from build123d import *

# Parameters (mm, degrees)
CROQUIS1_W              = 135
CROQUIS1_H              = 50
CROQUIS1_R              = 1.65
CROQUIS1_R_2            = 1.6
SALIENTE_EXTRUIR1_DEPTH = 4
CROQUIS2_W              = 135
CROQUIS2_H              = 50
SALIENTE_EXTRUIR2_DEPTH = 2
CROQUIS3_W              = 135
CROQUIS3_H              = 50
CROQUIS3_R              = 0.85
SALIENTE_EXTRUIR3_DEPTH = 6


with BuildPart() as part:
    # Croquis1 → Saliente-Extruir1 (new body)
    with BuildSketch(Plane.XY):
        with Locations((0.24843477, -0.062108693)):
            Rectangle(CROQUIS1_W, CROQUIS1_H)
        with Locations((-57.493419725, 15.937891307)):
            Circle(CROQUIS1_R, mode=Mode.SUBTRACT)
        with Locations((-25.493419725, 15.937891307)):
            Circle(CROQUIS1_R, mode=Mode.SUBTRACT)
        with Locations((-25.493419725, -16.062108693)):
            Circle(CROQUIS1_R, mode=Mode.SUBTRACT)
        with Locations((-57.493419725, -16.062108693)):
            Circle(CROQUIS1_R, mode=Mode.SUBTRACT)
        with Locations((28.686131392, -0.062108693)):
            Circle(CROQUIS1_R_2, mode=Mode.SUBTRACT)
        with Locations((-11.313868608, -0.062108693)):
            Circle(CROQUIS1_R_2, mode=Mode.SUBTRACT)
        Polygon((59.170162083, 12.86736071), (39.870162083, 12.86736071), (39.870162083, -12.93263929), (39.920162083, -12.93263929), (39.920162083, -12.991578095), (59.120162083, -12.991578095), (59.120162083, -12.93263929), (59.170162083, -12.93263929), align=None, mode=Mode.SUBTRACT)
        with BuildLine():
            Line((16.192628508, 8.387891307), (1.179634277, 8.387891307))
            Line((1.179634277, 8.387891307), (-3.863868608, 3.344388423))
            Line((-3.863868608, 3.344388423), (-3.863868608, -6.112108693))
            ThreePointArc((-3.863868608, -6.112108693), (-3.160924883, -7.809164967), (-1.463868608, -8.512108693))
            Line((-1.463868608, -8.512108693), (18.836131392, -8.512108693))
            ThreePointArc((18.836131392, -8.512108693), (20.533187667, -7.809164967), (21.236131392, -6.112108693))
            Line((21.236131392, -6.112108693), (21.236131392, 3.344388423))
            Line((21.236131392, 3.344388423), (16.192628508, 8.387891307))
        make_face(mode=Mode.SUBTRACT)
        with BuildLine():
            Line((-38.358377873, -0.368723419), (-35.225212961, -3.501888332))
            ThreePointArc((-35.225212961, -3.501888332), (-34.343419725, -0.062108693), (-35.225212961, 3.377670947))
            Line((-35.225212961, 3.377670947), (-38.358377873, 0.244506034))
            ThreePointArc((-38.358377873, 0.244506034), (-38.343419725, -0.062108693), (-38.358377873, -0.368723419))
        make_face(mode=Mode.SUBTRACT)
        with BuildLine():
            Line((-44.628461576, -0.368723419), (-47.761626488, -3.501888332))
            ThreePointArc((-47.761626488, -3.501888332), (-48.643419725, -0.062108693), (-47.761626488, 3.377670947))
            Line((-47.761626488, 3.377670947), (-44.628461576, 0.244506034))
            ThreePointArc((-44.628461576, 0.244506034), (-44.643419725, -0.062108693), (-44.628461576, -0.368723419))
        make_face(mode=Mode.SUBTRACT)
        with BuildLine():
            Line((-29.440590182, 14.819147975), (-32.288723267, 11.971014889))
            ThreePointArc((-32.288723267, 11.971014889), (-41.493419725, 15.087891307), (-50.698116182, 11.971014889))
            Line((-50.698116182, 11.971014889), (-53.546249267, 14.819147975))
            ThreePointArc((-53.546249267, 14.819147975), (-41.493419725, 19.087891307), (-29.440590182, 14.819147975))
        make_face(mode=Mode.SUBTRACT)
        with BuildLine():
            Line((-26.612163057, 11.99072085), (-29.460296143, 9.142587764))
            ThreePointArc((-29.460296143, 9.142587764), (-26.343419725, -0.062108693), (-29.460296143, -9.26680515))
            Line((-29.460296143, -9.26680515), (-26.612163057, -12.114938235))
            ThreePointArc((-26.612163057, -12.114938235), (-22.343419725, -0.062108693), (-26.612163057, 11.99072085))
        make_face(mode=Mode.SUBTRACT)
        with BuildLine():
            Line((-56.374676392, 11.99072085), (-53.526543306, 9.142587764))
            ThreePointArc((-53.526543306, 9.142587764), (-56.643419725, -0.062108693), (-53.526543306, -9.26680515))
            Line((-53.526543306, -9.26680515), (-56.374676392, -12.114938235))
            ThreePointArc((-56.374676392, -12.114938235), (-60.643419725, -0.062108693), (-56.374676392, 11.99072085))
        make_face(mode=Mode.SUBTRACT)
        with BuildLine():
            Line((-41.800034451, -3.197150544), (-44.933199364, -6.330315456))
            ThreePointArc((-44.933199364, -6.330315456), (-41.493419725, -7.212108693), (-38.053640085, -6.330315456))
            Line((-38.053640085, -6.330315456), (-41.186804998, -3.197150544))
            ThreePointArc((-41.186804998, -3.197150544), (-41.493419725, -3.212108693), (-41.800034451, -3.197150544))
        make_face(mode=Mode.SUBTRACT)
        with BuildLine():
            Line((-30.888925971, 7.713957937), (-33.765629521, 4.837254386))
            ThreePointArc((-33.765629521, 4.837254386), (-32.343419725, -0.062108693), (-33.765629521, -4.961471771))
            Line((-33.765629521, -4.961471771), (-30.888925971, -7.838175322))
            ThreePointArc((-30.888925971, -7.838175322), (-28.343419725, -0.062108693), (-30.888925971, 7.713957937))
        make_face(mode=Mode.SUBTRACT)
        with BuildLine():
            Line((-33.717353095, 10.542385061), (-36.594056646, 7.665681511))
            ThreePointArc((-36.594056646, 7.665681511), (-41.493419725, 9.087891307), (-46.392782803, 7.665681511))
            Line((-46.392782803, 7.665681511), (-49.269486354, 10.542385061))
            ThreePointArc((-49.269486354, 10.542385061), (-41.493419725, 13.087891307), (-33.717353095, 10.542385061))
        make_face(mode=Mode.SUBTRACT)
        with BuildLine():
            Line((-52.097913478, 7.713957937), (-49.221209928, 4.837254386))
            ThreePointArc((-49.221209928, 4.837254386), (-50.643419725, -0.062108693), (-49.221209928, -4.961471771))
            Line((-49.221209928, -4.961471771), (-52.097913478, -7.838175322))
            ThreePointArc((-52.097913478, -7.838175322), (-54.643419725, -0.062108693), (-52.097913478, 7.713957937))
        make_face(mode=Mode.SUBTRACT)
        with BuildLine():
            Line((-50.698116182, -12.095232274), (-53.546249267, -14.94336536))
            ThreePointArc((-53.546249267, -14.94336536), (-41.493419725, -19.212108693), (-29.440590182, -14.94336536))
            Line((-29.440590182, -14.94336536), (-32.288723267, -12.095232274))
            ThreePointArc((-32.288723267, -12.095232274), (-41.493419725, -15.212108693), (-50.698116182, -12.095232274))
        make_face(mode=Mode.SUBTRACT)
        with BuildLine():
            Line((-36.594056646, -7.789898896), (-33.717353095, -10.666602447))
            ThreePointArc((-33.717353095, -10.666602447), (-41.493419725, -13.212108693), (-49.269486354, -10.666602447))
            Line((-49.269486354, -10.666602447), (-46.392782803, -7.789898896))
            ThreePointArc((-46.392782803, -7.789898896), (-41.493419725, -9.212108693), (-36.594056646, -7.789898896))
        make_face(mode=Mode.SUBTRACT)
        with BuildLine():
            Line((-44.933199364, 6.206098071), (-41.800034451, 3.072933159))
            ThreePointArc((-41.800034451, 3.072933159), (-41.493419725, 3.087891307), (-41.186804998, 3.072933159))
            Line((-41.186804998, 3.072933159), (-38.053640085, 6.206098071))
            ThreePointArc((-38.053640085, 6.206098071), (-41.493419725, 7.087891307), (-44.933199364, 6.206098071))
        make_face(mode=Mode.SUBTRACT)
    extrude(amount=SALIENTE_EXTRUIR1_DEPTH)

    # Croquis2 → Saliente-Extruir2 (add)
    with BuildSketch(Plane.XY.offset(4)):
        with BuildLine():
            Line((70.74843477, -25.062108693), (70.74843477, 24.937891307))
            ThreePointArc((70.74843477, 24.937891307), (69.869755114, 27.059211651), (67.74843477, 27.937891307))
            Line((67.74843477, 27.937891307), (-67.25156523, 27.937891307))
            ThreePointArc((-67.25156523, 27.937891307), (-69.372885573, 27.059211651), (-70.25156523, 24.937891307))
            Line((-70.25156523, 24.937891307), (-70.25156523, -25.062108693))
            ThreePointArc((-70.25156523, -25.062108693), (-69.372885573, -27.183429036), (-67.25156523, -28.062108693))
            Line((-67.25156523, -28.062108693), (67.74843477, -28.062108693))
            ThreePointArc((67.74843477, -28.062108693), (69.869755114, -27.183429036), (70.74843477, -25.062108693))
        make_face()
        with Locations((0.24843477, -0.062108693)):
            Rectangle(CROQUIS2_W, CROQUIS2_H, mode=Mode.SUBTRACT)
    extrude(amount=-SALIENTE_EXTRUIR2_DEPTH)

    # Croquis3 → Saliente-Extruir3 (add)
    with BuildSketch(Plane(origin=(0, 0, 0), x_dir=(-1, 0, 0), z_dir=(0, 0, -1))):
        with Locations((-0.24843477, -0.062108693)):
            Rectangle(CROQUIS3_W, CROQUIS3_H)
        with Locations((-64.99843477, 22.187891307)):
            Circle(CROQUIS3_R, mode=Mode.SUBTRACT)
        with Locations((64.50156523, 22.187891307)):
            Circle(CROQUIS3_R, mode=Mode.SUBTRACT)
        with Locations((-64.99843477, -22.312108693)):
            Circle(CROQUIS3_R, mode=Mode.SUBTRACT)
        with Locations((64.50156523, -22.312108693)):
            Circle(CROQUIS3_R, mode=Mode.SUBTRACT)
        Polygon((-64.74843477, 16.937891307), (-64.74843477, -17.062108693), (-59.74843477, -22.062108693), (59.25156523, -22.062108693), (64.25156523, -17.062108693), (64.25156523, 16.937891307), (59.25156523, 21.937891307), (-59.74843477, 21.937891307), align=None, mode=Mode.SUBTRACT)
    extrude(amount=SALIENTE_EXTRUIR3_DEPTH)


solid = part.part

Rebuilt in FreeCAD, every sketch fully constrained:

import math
import FreeCAD as App
import Part
import Sketcher
from FreeCAD import Vector

doc = App.newDocument("Part")
body = doc.addObject("PartDesign::Body", "Body")

sketch1 = body.newObject("Sketcher::SketchObject", "Sketch")
sketch1.AttachmentSupport = (doc.getObject("XY_Plane"), [""])
sketch1.MapMode = "FlatFace"
sketch1.addGeometry([
    Part.LineSegment(Vector(-67.251565, 24.937891, 0), Vector(-67.251565, -25.062109, 0)),
    Part.LineSegment(Vector(-67.251565, -25.062109, 0), Vector(67.748435, -25.062109, 0)),
    Part.LineSegment(Vector(67.748435, -25.062109, 0), Vector(67.748435, 24.937891, 0)),
    Part.LineSegment(Vector(67.748435, 24.937891, 0), Vector(-67.251565, 24.937891, 0)),
    Part.Circle(Vector(-57.49342, -16.062109, 0), Vector(0, 0, 1), 1.65),
    Part.LineSegment(Vector(-53.546249, -14.943365, 0), Vector(-50.698116, -12.095232, 0)),
    Part.ArcOfCircle(Part.Circle(Vector(-41.49342, -0.062109, 0), Vector(0, 0, 1), 15.15), math.radians(-127.414057), math.radians(-52.585943)),
    Part.LineSegment(Vector(-32.288723, -12.095232, 0), Vector(-29.44059, -14.943365, 0)),
    Part.ArcOfCircle(Part.Circle(Vector(-41.49342, -0.062109, 0), Vector(0, 0, 1), 19.15), math.radians(-129.005175), math.radians(-50.994825)),
    Part.ArcOfCircle(Part.Circle(Vector(-41.49342, -0.062109, 0), Vector(0, 0, 1), 9.15), math.radians(-122.374402), math.radians(-57.625598)),
    Part.LineSegment(Vector(-36.594057, -7.789899, 0), Vector(-33.717353, -10.666602, 0)),
    Part.ArcOfCircle(Part.Circle(Vector(-41.49342, -0.062109, 0), Vector(0, 0, 1), 13.15), math.radians(-126.251863), math.radians(-53.748137)),
    Part.LineSegment(Vector(-49.269486, -10.666602, 0), Vector(-46.392783, -7.789899, 0)),
    Part.Circle(Vector(-25.49342, -16.062109, 0), Vector(0, 0, 1), 1.65),
    Part.LineSegment(Vector(-44.933199, -6.330315, 0), Vector(-41.800034, -3.197151, 0)),
    Part.ArcOfCircle(Part.Circle(Vector(-41.49342, -0.062109, 0), Vector(0, 0, 1), 3.15), math.radians(-95.585902), math.radians(-84.414098)),
    Part.LineSegment(Vector(-41.186805, -3.197151, 0), Vector(-38.05364, -6.330315, 0)),
    Part.ArcOfCircle(Part.Circle(Vector(-41.49342, -0.062109, 0), Vector(0, 0, 1), 7.15), math.radians(-118.756489), math.radians(-61.243511)),
    Part.ArcOfCircle(Part.Circle(Vector(-41.49342, -0.062109, 0), Vector(0, 0, 1), 19.15), math.radians(140.994825), math.radians(219.005175)),
    Part.LineSegment(Vector(-56.374676, 11.990721, 0), Vector(-53.526543, 9.142588, 0)),
    Part.ArcOfCircle(Part.Circle(Vector(-41.49342, -0.062109, 0), Vector(0, 0, 1), 15.15), math.radians(142.585943), math.radians(217.414057)),
    Part.LineSegment(Vector(-53.526543, -9.266805, 0), Vector(-56.374676, -12.114938, 0)),
    Part.ArcOfCircle(Part.Circle(Vector(-41.49342, -0.062109, 0), Vector(0, 0, 1), 13.15), math.radians(143.748137), math.radians(216.251863)),
    Part.LineSegment(Vector(-52.097913, 7.713958, 0), Vector(-49.22121, 4.837254, 0)),
    Part.ArcOfCircle(Part.Circle(Vector(-41.49342, -0.062109, 0), Vector(0, 0, 1), 9.15), math.radians(147.625598), math.radians(212.374402)),
    Part.LineSegment(Vector(-49.22121, -4.961472, 0), Vector(-52.097913, -7.838175, 0)),
    Part.ArcOfCircle(Part.Circle(Vector(-41.49342, -0.062109, 0), Vector(0, 0, 1), 3.15), math.radians(174.414098), math.radians(185.585902)),
    Part.LineSegment(Vector(-44.628462, -0.368723, 0), Vector(-47.761626, -3.501888, 0)),
    Part.ArcOfCircle(Part.Circle(Vector(-41.49342, -0.062109, 0), Vector(0, 0, 1), 7.15), math.radians(151.243511), math.radians(208.756489)),
    Part.LineSegment(Vector(-47.761626, 3.377671, 0), Vector(-44.628462, 0.244506, 0)),
    Part.LineSegment(Vector(-35.225213, -3.501888, 0), Vector(-38.358378, -0.368723, 0)),
    Part.ArcOfCircle(Part.Circle(Vector(-41.49342, -0.062109, 0), Vector(0, 0, 1), 3.15), math.radians(-5.585901), math.radians(5.585901)),
    Part.LineSegment(Vector(-38.358378, 0.244506, 0), Vector(-35.225213, 3.377671, 0)),
    Part.ArcOfCircle(Part.Circle(Vector(-41.49342, -0.062109, 0), Vector(0, 0, 1), 7.15), math.radians(-28.756489), math.radians(28.756489)),
    Part.LineSegment(Vector(-33.76563, 4.837254, 0), Vector(-30.888926, 7.713958, 0)),
    Part.ArcOfCircle(Part.Circle(Vector(-41.49342, -0.062109, 0), Vector(0, 0, 1), 13.15), math.radians(-36.251863), math.radians(36.251863)),
    Part.LineSegment(Vector(-30.888926, -7.838175, 0), Vector(-33.76563, -4.961472, 0)),
    Part.ArcOfCircle(Part.Circle(Vector(-41.49342, -0.062109, 0), Vector(0, 0, 1), 9.15), math.radians(-32.374402), math.radians(32.374402)),
    Part.LineSegment(Vector(-41.800034, 3.072933, 0), Vector(-44.933199, 6.206098, 0)),
    Part.ArcOfCircle(Part.Circle(Vector(-41.49342, -0.062109, 0), Vector(0, 0, 1), 7.15), math.radians(61.243511), math.radians(118.756489)),
    Part.LineSegment(Vector(-38.05364, 6.206098, 0), Vector(-41.186805, 3.072933, 0)),
    Part.ArcOfCircle(Part.Circle(Vector(-41.49342, -0.062109, 0), Vector(0, 0, 1), 3.15), math.radians(84.414099), math.radians(95.585901)),
    Part.LineSegment(Vector(-29.460296, 9.142588, 0), Vector(-26.612163, 11.990721, 0)),
    Part.ArcOfCircle(Part.Circle(Vector(-41.49342, -0.062109, 0), Vector(0, 0, 1), 19.15), math.radians(-39.005175), math.radians(39.005175)),
    Part.LineSegment(Vector(-26.612163, -12.114938, 0), Vector(-29.460296, -9.266805, 0)),
    Part.ArcOfCircle(Part.Circle(Vector(-41.49342, -0.062109, 0), Vector(0, 0, 1), 15.15), math.radians(-37.414057), math.radians(37.414057)),
    Part.Circle(Vector(-11.313869, -0.062109, 0), Vector(0, 0, 1), 1.6),
    Part.ArcOfCircle(Part.Circle(Vector(-41.49342, -0.062109, 0), Vector(0, 0, 1), 13.15), math.radians(53.748137), math.radians(126.251863)),
    Part.LineSegment(Vector(-33.717353, 10.542385, 0), Vector(-36.594057, 7.665682, 0)),
    Part.ArcOfCircle(Part.Circle(Vector(-41.49342, -0.062109, 0), Vector(0, 0, 1), 9.15), math.radians(57.625598), math.radians(122.374402)),
    Part.LineSegment(Vector(-46.392783, 7.665682, 0), Vector(-49.269486, 10.542385, 0)),
    Part.Circle(Vector(-57.49342, 15.937891, 0), Vector(0, 0, 1), 1.65),
    Part.ArcOfCircle(Part.Circle(Vector(-41.49342, -0.062109, 0), Vector(0, 0, 1), 19.15), math.radians(50.994825), math.radians(129.005175)),
    Part.LineSegment(Vector(-29.44059, 14.819148, 0), Vector(-32.288723, 11.971015, 0)),
    Part.ArcOfCircle(Part.Circle(Vector(-41.49342, -0.062109, 0), Vector(0, 0, 1), 15.15), math.radians(52.585943), math.radians(127.414057)),
    Part.LineSegment(Vector(-50.698116, 11.971015, 0), Vector(-53.546249, 14.819148, 0)),
    Part.Circle(Vector(-25.49342, 15.937891, 0), Vector(0, 0, 1), 1.65),
    Part.LineSegment(Vector(1.179634, 8.387891, 0), Vector(16.192629, 8.387891, 0)),
    Part.LineSegment(Vector(16.192629, 8.387891, 0), Vector(21.236131, 3.344388, 0)),
    Part.LineSegment(Vector(21.236131, 3.344388, 0), Vector(21.236131, -6.112109, 0)),
    Part.ArcOfCircle(Part.Circle(Vector(18.836131, -6.112109, 0), Vector(0, 0, 1), 2.4), math.radians(-90), math.radians(0)),
    Part.LineSegment(Vector(18.836131, -8.512109, 0), Vector(-1.463869, -8.512109, 0)),
    Part.ArcOfCircle(Part.Circle(Vector(-1.463869, -6.112109, 0), Vector(0, 0, 1), 2.4), math.radians(-180), math.radians(-90)),
    Part.LineSegment(Vector(-3.863869, -6.112109, 0), Vector(-3.863869, 3.344388, 0)),
    Part.LineSegment(Vector(-3.863869, 3.344388, 0), Vector(1.179634, 8.387891, 0)),
    Part.Circle(Vector(28.686131, -0.062109, 0), Vector(0, 0, 1), 1.6),
    Part.LineSegment(Vector(39.870162, 12.867361, 0), Vector(59.170162, 12.867361, 0)),
    Part.LineSegment(Vector(59.170162, 12.867361, 0), Vector(59.170162, -12.932639, 0)),
    Part.LineSegment(Vector(59.170162, -12.932639, 0), Vector(59.120162, -12.932639, 0)),
    Part.LineSegment(Vector(59.120162, -12.932639, 0), Vector(59.120162, -12.991578, 0)),
    Part.LineSegment(Vector(59.120162, -12.991578, 0), Vector(39.920162, -12.991578, 0)),
    Part.LineSegment(Vector(39.920162, -12.991578, 0), Vector(39.920162, -12.932639, 0)),
    Part.LineSegment(Vector(39.920162, -12.932639, 0), Vector(39.870162, -12.932639, 0)),
    Part.LineSegment(Vector(39.870162, -12.932639, 0), Vector(39.870162, 12.867361, 0)),
], False)
sketch1.addConstraint([
    Sketcher.Constraint("Coincident", 0, 2, 1, 1),
    Sketcher.Constraint("Coincident", 1, 2, 2, 1),
    Sketcher.Constraint("Coincident", 2, 2, 3, 1),
    Sketcher.Constraint("Coincident", 3, 2, 0, 1),
    Sketcher.Constraint("Coincident", 5, 2, 6, 1),
    Sketcher.Constraint("Coincident", 6, 2, 7, 1),
    Sketcher.Constraint("Coincident", 7, 2, 8, 2),
    Sketcher.Constraint("Coincident", 8, 1, 5, 1),
    Sketcher.Constraint("Coincident", 9, 2, 10, 1),
    Sketcher.Constraint("Coincident", 10, 2, 11, 2),
    Sketcher.Constraint("Coincident", 11, 1, 12, 1),
    Sketcher.Constraint("Coincident", 12, 2, 9, 1),
    Sketcher.Constraint("Coincident", 14, 2, 15, 1),
    Sketcher.Constraint("Coincident", 15, 2, 16, 1),
    Sketcher.Constraint("Coincident", 16, 2, 17, 2),
    Sketcher.Constraint("Coincident", 17, 1, 14, 1),
    Sketcher.Constraint("Coincident", 18, 1, 19, 1),
    Sketcher.Constraint("Coincident", 19, 2, 20, 1),
    Sketcher.Constraint("Coincident", 20, 2, 21, 1),
    Sketcher.Constraint("Coincident", 21, 2, 18, 2),
    Sketcher.Constraint("Coincident", 22, 1, 23, 1),
    Sketcher.Constraint("Coincident", 23, 2, 24, 1),
    Sketcher.Constraint("Coincident", 24, 2, 25, 1),
    Sketcher.Constraint("Coincident", 25, 2, 22, 2),
    Sketcher.Constraint("Coincident", 26, 2, 27, 1),
    Sketcher.Constraint("Coincident", 27, 2, 28, 2),
    Sketcher.Constraint("Coincident", 28, 1, 29, 1),
    Sketcher.Constraint("Coincident", 29, 2, 26, 1),
    Sketcher.Constraint("Coincident", 30, 2, 31, 1),
    Sketcher.Constraint("Coincident", 31, 2, 32, 1),
    Sketcher.Constraint("Coincident", 32, 2, 33, 2),
    Sketcher.Constraint("Coincident", 33, 1, 30, 1),
    Sketcher.Constraint("Coincident", 34, 2, 35, 2),
    Sketcher.Constraint("Coincident", 35, 1, 36, 1),
    Sketcher.Constraint("Coincident", 36, 2, 37, 1),
    Sketcher.Constraint("Coincident", 37, 2, 34, 1),
    Sketcher.Constraint("Coincident", 38, 2, 39, 2),
    Sketcher.Constraint("Coincident", 39, 1, 40, 1),
    Sketcher.Constraint("Coincident", 40, 2, 41, 1),
    Sketcher.Constraint("Coincident", 41, 2, 38, 1),
    Sketcher.Constraint("Coincident", 42, 2, 43, 2),
    Sketcher.Constraint("Coincident", 43, 1, 44, 1),
    Sketcher.Constraint("Coincident", 44, 2, 45, 1),
    Sketcher.Constraint("Coincident", 45, 2, 42, 1),
    Sketcher.Constraint("Coincident", 47, 1, 48, 1),
    Sketcher.Constraint("Coincident", 48, 2, 49, 1),
    Sketcher.Constraint("Coincident", 49, 2, 50, 1),
    Sketcher.Constraint("Coincident", 50, 2, 47, 2),
    Sketcher.Constraint("Coincident", 52, 1, 53, 1),
    Sketcher.Constraint("Coincident", 53, 2, 54, 1),
    Sketcher.Constraint("Coincident", 54, 2, 55, 1),
    Sketcher.Constraint("Coincident", 55, 2, 52, 2),
    Sketcher.Constraint("Coincident", 57, 2, 58, 1),
    Sketcher.Constraint("Coincident", 58, 2, 59, 1),
    Sketcher.Constraint("Tangent", 59, 2, 60, 2),
    Sketcher.Constraint("Tangent", 60, 1, 61, 1),
    Sketcher.Constraint("Tangent", 61, 2, 62, 2),
    Sketcher.Constraint("Tangent", 62, 1, 63, 1),
    Sketcher.Constraint("Coincident", 63, 2, 64, 1),
    Sketcher.Constraint("Coincident", 64, 2, 57, 1),
    Sketcher.Constraint("Coincident", 66, 2, 67, 1),
    Sketcher.Constraint("Coincident", 67, 2, 68, 1),
    Sketcher.Constraint("Coincident", 68, 2, 69, 1),
    Sketcher.Constraint("Coincident", 69, 2, 70, 1),
    Sketcher.Constraint("Coincident", 70, 2, 71, 1),
    Sketcher.Constraint("Coincident", 71, 2, 72, 1),
    Sketcher.Constraint("Coincident", 72, 2, 73, 1),
    Sketcher.Constraint("Coincident", 73, 2, 66, 1),
    Sketcher.Constraint("Vertical", 0),
    Sketcher.Constraint("Horizontal", 1),
    Sketcher.Constraint("Vertical", 2),
    Sketcher.Constraint("Horizontal", 3),
    Sketcher.Constraint("Horizontal", 57),
    Sketcher.Constraint("Vertical", 59),
    Sketcher.Constraint("Horizontal", 61),
    Sketcher.Constraint("Vertical", 63),
    Sketcher.Constraint("Horizontal", 66),
    Sketcher.Constraint("Vertical", 67),
    Sketcher.Constraint("Horizontal", 68),
    Sketcher.Constraint("Vertical", 69),
    Sketcher.Constraint("Horizontal", 70),
    Sketcher.Constraint("Vertical", 71),
    Sketcher.Constraint("Horizontal", 72),
    Sketcher.Constraint("Vertical", 73),
    Sketcher.Constraint("Coincident", 8, 3, 6, 3),
    Sketcher.Constraint("Coincident", 9, 3, 6, 3),
    Sketcher.Constraint("Coincident", 11, 3, 6, 3),
    Sketcher.Constraint("Coincident", 15, 3, 6, 3),
    Sketcher.Constraint("Coincident", 17, 3, 6, 3),
    Sketcher.Constraint("Coincident", 18, 3, 6, 3),
    Sketcher.Constraint("Coincident", 20, 3, 6, 3),
    Sketcher.Constraint("Coincident", 22, 3, 6, 3),
    Sketcher.Constraint("Coincident", 24, 3, 6, 3),
    Sketcher.Constraint("Coincident", 26, 3, 6, 3),
    Sketcher.Constraint("Coincident", 28, 3, 6, 3),
    Sketcher.Constraint("Coincident", 31, 3, 6, 3),
    Sketcher.Constraint("Coincident", 33, 3, 6, 3),
    Sketcher.Constraint("Coincident", 35, 3, 6, 3),
    Sketcher.Constraint("Coincident", 37, 3, 6, 3),
    Sketcher.Constraint("Coincident", 39, 3, 6, 3),
    Sketcher.Constraint("Coincident", 41, 3, 6, 3),
    Sketcher.Constraint("Coincident", 43, 3, 6, 3),
    Sketcher.Constraint("Coincident", 45, 3, 6, 3),
    Sketcher.Constraint("Coincident", 47, 3, 6, 3),
    Sketcher.Constraint("Coincident", 49, 3, 6, 3),
    Sketcher.Constraint("Coincident", 52, 3, 6, 3),
    Sketcher.Constraint("Coincident", 54, 3, 6, 3),
    Sketcher.Constraint("Equal", 4, 13),
    Sketcher.Constraint("Equal", 8, 18),
    Sketcher.Constraint("Equal", 6, 20),
    Sketcher.Constraint("Equal", 11, 22),
    Sketcher.Constraint("Equal", 9, 24),
    Sketcher.Constraint("Equal", 15, 26),
    Sketcher.Constraint("Equal", 17, 28),
    Sketcher.Constraint("Equal", 26, 31),
    Sketcher.Constraint("Equal", 28, 33),
    Sketcher.Constraint("Equal", 22, 35),
    Sketcher.Constraint("Equal", 24, 37),
    Sketcher.Constraint("Equal", 33, 39),
    Sketcher.Constraint("Equal", 31, 41),
    Sketcher.Constraint("Equal", 18, 43),
    Sketcher.Constraint("Equal", 20, 45),
    Sketcher.Constraint("Equal", 35, 47),
    Sketcher.Constraint("Equal", 37, 49),
    Sketcher.Constraint("Equal", 13, 51),
    Sketcher.Constraint("Equal", 43, 52),
    Sketcher.Constraint("Equal", 45, 54),
    Sketcher.Constraint("Equal", 51, 56),
    Sketcher.Constraint("Equal", 60, 62),
    Sketcher.Constraint("Equal", 46, 65),
    Sketcher.Constraint("Perpendicular", 5, 7),
    Sketcher.Constraint("Parallel", 7, 10),
    Sketcher.Constraint("Perpendicular", 10, 12),
    Sketcher.Constraint("Parallel", 12, 14),
    Sketcher.Constraint("Perpendicular", 14, 16),
    Sketcher.Constraint("Parallel", 16, 19),
    Sketcher.Constraint("Perpendicular", 19, 21),
    Sketcher.Constraint("Perpendicular", 21, 23),
    Sketcher.Constraint("Perpendicular", 23, 25),
    Sketcher.Constraint("Parallel", 25, 27),
    Sketcher.Constraint("Perpendicular", 27, 29),
    Sketcher.Constraint("Parallel", 29, 30),
    Sketcher.Constraint("Perpendicular", 30, 32),
    Sketcher.Constraint("Parallel", 32, 34),
    Sketcher.Constraint("Perpendicular", 34, 36),
    Sketcher.Constraint("Parallel", 36, 38),
    Sketcher.Constraint("Perpendicular", 38, 40),
    Sketcher.Constraint("Parallel", 40, 42),
    Sketcher.Constraint("Perpendicular", 42, 44),
    Sketcher.Constraint("Perpendicular", 44, 48),
    Sketcher.Constraint("Perpendicular", 48, 50),
    Sketcher.Constraint("Perpendicular", 50, 53),
    Sketcher.Constraint("Perpendicular", 53, 55),
    Sketcher.Constraint("Parallel", 55, 58),
    Sketcher.Constraint("Perpendicular", 58, 64),
    Sketcher.Constraint("Horizontal", 4, 3, 13, 3),
    Sketcher.Constraint("Horizontal", 45, 3, 46, 3),
    Sketcher.Constraint("Horizontal", 51, 3, 56, 3),
    Sketcher.Constraint("Horizontal", 54, 3, 65, 3),
    Sketcher.Constraint("Horizontal", 5, 2, 6, 2),
    Sketcher.Constraint("Horizontal", 7, 2, 8, 1),
    Sketcher.Constraint("Horizontal", 10, 2, 11, 1),
    Sketcher.Constraint("Horizontal", 14, 2, 15, 2),
    Sketcher.Constraint("Horizontal", 26, 2, 30, 2),
    Sketcher.Constraint("Horizontal", 29, 2, 31, 2),
    Sketcher.Constraint("Horizontal", 22, 1, 34, 2),
    Sketcher.Constraint("Horizontal", 25, 2, 35, 1),
    Sketcher.Constraint("Horizontal", 38, 2, 39, 1),
    Sketcher.Constraint("Horizontal", 18, 1, 42, 2),
    Sketcher.Constraint("Horizontal", 21, 2, 43, 1),
    Sketcher.Constraint("Horizontal", 48, 2, 49, 2),
    Sketcher.Constraint("Horizontal", 53, 2, 54, 2),
    Sketcher.Constraint("Horizontal", 58, 2, 63, 2),
    Sketcher.Constraint("Horizontal", 68, 2, 71, 2),
    Sketcher.Constraint("Vertical", 4, 3, 51, 3),
    Sketcher.Constraint("Vertical", 13, 3, 56, 3),
    Sketcher.Constraint("Vertical", 19, 2, 20, 2),
    Sketcher.Constraint("Vertical", 23, 2, 24, 2),
    Sketcher.Constraint("Vertical", 27, 2, 28, 1),
    Sketcher.Constraint("Vertical", 17, 1, 38, 2),
    Sketcher.Constraint("Vertical", 10, 2, 47, 1),
    Sketcher.Constraint("Vertical", 7, 2, 52, 1),
    Sketcher.Constraint("Equal", 68, 72),
    Sketcher.Constraint("Equal", 7, 19),
    Sketcher.Constraint("Equal", 12, 23),
    Sketcher.Constraint("Equal", 16, 27),
    Sketcher.Constraint("Diameter", 4, 3.3),
    Sketcher.Constraint("Diameter", 46, 3.2),
    Sketcher.Constraint("Radius", 60, 2.4),
    Sketcher.Constraint("DistanceX", 1, 1, 1, 2, 135.0),
    Sketcher.Constraint("DistanceY", 0, 2, 0, 1, 50.0),
    Sketcher.Constraint("Radius", 6, 15.15),
    Sketcher.Constraint("Radius", 8, 19.15),
    Sketcher.Constraint("Radius", 9, 9.15),
    Sketcher.Constraint("Radius", 11, 13.15),
    Sketcher.Constraint("Radius", 15, 3.15),
    Sketcher.Constraint("Radius", 17, 7.15),
    Sketcher.Constraint("DistanceX", 61, 2, 61, 1, 20.3),
    Sketcher.Constraint("DistanceX", 66, 1, 66, 2, 19.3),
    Sketcher.Constraint("DistanceX", 70, 2, 70, 1, 19.2),
    Sketcher.Constraint("DistanceY", 67, 2, 67, 1, 25.8),
    Sketcher.Constraint("DistanceY", 69, 2, 69, 1, 0.058939),
    Sketcher.Constraint("DistanceY", 9, 2, -1, 1, 7.789899),
    Sketcher.Constraint("DistanceX", 17, 1, -1, 1, 44.933199),
    Sketcher.Constraint("DistanceY", -1, 1, 38, 2, 6.206098),
    Sketcher.Constraint("Distance", 5, 4.027868),
    Sketcher.Constraint("Distance", 58, 7.13259),
    Sketcher.Constraint("DistanceY", 59, 2, 59, 1, 9.456497),
    Sketcher.Constraint("DistanceX", 4, 3, -1, 1, 57.49342),
    Sketcher.Constraint("DistanceY", 4, 3, -1, 1, 16.062109),
    Sketcher.Constraint("DistanceX", 6, 3, -1, 1, 41.49342),
    Sketcher.Constraint("DistanceX", 13, 3, -1, 1, 25.49342),
    Sketcher.Constraint("DistanceX", 46, 3, -1, 1, 11.313869),
    Sketcher.Constraint("DistanceY", -1, 1, 51, 3, 15.937891),
    Sketcher.Constraint("DistanceX", -1, 1, 60, 3, 18.836131),
    Sketcher.Constraint("DistanceY", 60, 3, -1, 1, 6.112109),
    Sketcher.Constraint("DistanceX", -1, 1, 65, 3, 28.686131),
    Sketcher.Constraint("DistanceY", 0, 2, -1, 1, 25.062109),
    Sketcher.Constraint("DistanceY", -1, 1, 66, 2, 12.867361),
    Sketcher.Constraint("DistanceX", 0, 2, -1, 1, 67.251565),
    Sketcher.Constraint("DistanceX", -1, 1, 66, 2, 59.170162),
])
pad1 = body.newObject("PartDesign::Pad", "Pad")
pad1.Profile = sketch1
pad1.Length = 4

sketch2 = body.newObject("Sketcher::SketchObject", "Sketch001")
sketch2.AttachmentSupport = (doc.getObject("XY_Plane"), [""])
sketch2.MapMode = "FlatFace"
sketch2.AttachmentOffset = App.Placement(Vector(0, 0, 4), App.Rotation())
sketch2.addGeometry([
    Part.LineSegment(Vector(70.748435, -25.062109, 0), Vector(70.748435, 24.937891, 0)),
    Part.ArcOfCircle(Part.Circle(Vector(67.748435, 24.937891, 0), Vector(0, 0, 1), 3), math.radians(0), math.radians(90)),
    Part.LineSegment(Vector(67.748435, 27.937891, 0), Vector(-67.251565, 27.937891, 0)),
    Part.ArcOfCircle(Part.Circle(Vector(-67.251565, 24.937891, 0), Vector(0, 0, 1), 3), math.radians(90), math.radians(180)),
    Part.LineSegment(Vector(-70.251565, 24.937891, 0), Vector(-70.251565, -25.062109, 0)),
    Part.ArcOfCircle(Part.Circle(Vector(-67.251565, -25.062109, 0), Vector(0, 0, 1), 3), math.radians(-180), math.radians(-90)),
    Part.LineSegment(Vector(-67.251565, -28.062109, 0), Vector(67.748435, -28.062109, 0)),
    Part.ArcOfCircle(Part.Circle(Vector(67.748435, -25.062109, 0), Vector(0, 0, 1), 3), math.radians(-90), math.radians(0)),
    Part.LineSegment(Vector(67.748435, -25.062109, 0), Vector(-67.251565, -25.062109, 0)),
    Part.LineSegment(Vector(-67.251565, -25.062109, 0), Vector(-67.251565, 24.937891, 0)),
    Part.LineSegment(Vector(-67.251565, 24.937891, 0), Vector(67.748435, 24.937891, 0)),
    Part.LineSegment(Vector(67.748435, 24.937891, 0), Vector(67.748435, -25.062109, 0)),
], False)
sketch2.addConstraint([
    Sketcher.Constraint("Tangent", 0, 2, 1, 1),
    Sketcher.Constraint("Tangent", 1, 2, 2, 1),
    Sketcher.Constraint("Tangent", 2, 2, 3, 1),
    Sketcher.Constraint("Tangent", 3, 2, 4, 1),
    Sketcher.Constraint("Tangent", 4, 2, 5, 1),
    Sketcher.Constraint("Tangent", 5, 2, 6, 1),
    Sketcher.Constraint("Tangent", 6, 2, 7, 1),
    Sketcher.Constraint("Tangent", 7, 2, 0, 1),
    Sketcher.Constraint("Coincident", 8, 2, 9, 1),
    Sketcher.Constraint("Coincident", 9, 2, 10, 1),
    Sketcher.Constraint("Coincident", 10, 2, 11, 1),
    Sketcher.Constraint("Coincident", 11, 2, 8, 1),
    Sketcher.Constraint("Vertical", 0),
    Sketcher.Constraint("Horizontal", 2),
    Sketcher.Constraint("Vertical", 4),
    Sketcher.Constraint("Horizontal", 6),
    Sketcher.Constraint("Horizontal", 8),
    Sketcher.Constraint("Vertical", 9),
    Sketcher.Constraint("Horizontal", 10),
    Sketcher.Constraint("Vertical", 11),
    Sketcher.Constraint("Coincident", 8, 2, 5, 3),
    Sketcher.Constraint("Coincident", 9, 2, 3, 3),
    Sketcher.Constraint("Coincident", 10, 2, 1, 3),
    Sketcher.Constraint("Equal", 5, 7),
    Sketcher.Constraint("Radius", 1, 3.0),
    Sketcher.Constraint("DistanceX", 2, 2, 2, 1, 135.0),
    Sketcher.Constraint("DistanceY", 0, 1, 0, 2, 50.0),
    Sketcher.Constraint("DistanceY", -1, 1, 1, 3, 24.937891),
    Sketcher.Constraint("DistanceX", -1, 1, 1, 3, 67.748435),
])
pad2 = body.newObject("PartDesign::Pad", "Pad001")
pad2.Profile = sketch2
pad2.Length = 2
pad2.Reversed = True

sketch3 = body.newObject("Sketcher::SketchObject", "Sketch002")
sketch3.AttachmentSupport = (doc.getObject("XY_Plane"), [""])
sketch3.MapMode = "FlatFace"
sketch3.addGeometry([
    Part.LineSegment(Vector(67.748435, 24.937891, 0), Vector(67.748435, -25.062109, 0)),
    Part.LineSegment(Vector(67.748435, -25.062109, 0), Vector(-67.251565, -25.062109, 0)),
    Part.LineSegment(Vector(-67.251565, -25.062109, 0), Vector(-67.251565, 24.937891, 0)),
    Part.LineSegment(Vector(-67.251565, 24.937891, 0), Vector(67.748435, 24.937891, 0)),
    Part.Circle(Vector(64.998435, -22.312109, 0), Vector(0, 0, 1), 0.85),
    Part.Circle(Vector(-64.501565, -22.312109, 0), Vector(0, 0, 1), 0.85),
    Part.Circle(Vector(64.998435, 22.187891, 0), Vector(0, 0, 1), 0.85),
    Part.LineSegment(Vector(64.748435, -17.062109, 0), Vector(64.748435, 16.937891, 0)),
    Part.LineSegment(Vector(64.748435, 16.937891, 0), Vector(59.748435, 21.937891, 0)),
    Part.LineSegment(Vector(59.748435, 21.937891, 0), Vector(-59.251565, 21.937891, 0)),
    Part.LineSegment(Vector(-59.251565, 21.937891, 0), Vector(-64.251565, 16.937891, 0)),
    Part.LineSegment(Vector(-64.251565, 16.937891, 0), Vector(-64.251565, -17.062109, 0)),
    Part.LineSegment(Vector(-64.251565, -17.062109, 0), Vector(-59.251565, -22.062109, 0)),
    Part.LineSegment(Vector(-59.251565, -22.062109, 0), Vector(59.748435, -22.062109, 0)),
    Part.LineSegment(Vector(59.748435, -22.062109, 0), Vector(64.748435, -17.062109, 0)),
    Part.Circle(Vector(-64.501565, 22.187891, 0), Vector(0, 0, 1), 0.85),
], False)
sketch3.addConstraint([
    Sketcher.Constraint("Coincident", 0, 2, 1, 1),
    Sketcher.Constraint("Coincident", 1, 2, 2, 1),
    Sketcher.Constraint("Coincident", 2, 2, 3, 1),
    Sketcher.Constraint("Coincident", 3, 2, 0, 1),
    Sketcher.Constraint("Coincident", 7, 2, 8, 1),
    Sketcher.Constraint("Coincident", 8, 2, 9, 1),
    Sketcher.Constraint("Coincident", 9, 2, 10, 1),
    Sketcher.Constraint("Coincident", 10, 2, 11, 1),
    Sketcher.Constraint("Coincident", 11, 2, 12, 1),
    Sketcher.Constraint("Coincident", 12, 2, 13, 1),
    Sketcher.Constraint("Coincident", 13, 2, 14, 1),
    Sketcher.Constraint("Coincident", 14, 2, 7, 1),
    Sketcher.Constraint("Vertical", 0),
    Sketcher.Constraint("Horizontal", 1),
    Sketcher.Constraint("Vertical", 2),
    Sketcher.Constraint("Horizontal", 3),
    Sketcher.Constraint("Vertical", 7),
    Sketcher.Constraint("Horizontal", 9),
    Sketcher.Constraint("Vertical", 11),
    Sketcher.Constraint("Horizontal", 13),
    Sketcher.Constraint("Equal", 4, 5),
    Sketcher.Constraint("Equal", 5, 6),
    Sketcher.Constraint("Equal", 6, 15),
    Sketcher.Constraint("Perpendicular", 8, 10),
    Sketcher.Constraint("Perpendicular", 10, 12),
    Sketcher.Constraint("Perpendicular", 12, 14),
    Sketcher.Constraint("Horizontal", 4, 3, 5, 3),
    Sketcher.Constraint("Horizontal", 6, 3, 15, 3),
    Sketcher.Constraint("Horizontal", 7, 2, 10, 2),
    Sketcher.Constraint("Horizontal", 11, 2, 14, 2),
    Sketcher.Constraint("Vertical", 4, 3, 6, 3),
    Sketcher.Constraint("Vertical", 5, 3, 15, 3),
    Sketcher.Constraint("Vertical", 9, 2, 12, 2),
    Sketcher.Constraint("Vertical", 8, 2, 13, 2),
    Sketcher.Constraint("Diameter", 4, 1.7),
    Sketcher.Constraint("DistanceX", 1, 2, 1, 1, 135.0),
    Sketcher.Constraint("DistanceX", 9, 2, 9, 1, 119.0),
    Sketcher.Constraint("DistanceY", 0, 2, 0, 1, 50.0),
    Sketcher.Constraint("DistanceY", 7, 1, 7, 2, 34.0),
    Sketcher.Constraint("DistanceX", 7, 2, 3, 2, 3.0),
    Sketcher.Constraint("DistanceY", 7, 2, 3, 2, 8.0),
    Sketcher.Constraint("DistanceX", 8, 2, 7, 2, 5.0),
    Sketcher.Constraint("DistanceX", 5, 3, 4, 3, 129.5),
    Sketcher.Constraint("DistanceY", 4, 3, 6, 3, 44.5),
    Sketcher.Constraint("DistanceX", 4, 3, 0, 2, 2.75),
    Sketcher.Constraint("DistanceY", 0, 2, 4, 3, 2.75),
    Sketcher.Constraint("DistanceY", 4, 3, -1, 1, 22.312109),
    Sketcher.Constraint("DistanceX", -1, 1, 4, 3, 64.998435),
])
pad3 = body.newObject("PartDesign::Pad", "Pad002")
pad3.Profile = sketch3
pad3.Length = 6
pad3.Reversed = True

doc.recompute()
